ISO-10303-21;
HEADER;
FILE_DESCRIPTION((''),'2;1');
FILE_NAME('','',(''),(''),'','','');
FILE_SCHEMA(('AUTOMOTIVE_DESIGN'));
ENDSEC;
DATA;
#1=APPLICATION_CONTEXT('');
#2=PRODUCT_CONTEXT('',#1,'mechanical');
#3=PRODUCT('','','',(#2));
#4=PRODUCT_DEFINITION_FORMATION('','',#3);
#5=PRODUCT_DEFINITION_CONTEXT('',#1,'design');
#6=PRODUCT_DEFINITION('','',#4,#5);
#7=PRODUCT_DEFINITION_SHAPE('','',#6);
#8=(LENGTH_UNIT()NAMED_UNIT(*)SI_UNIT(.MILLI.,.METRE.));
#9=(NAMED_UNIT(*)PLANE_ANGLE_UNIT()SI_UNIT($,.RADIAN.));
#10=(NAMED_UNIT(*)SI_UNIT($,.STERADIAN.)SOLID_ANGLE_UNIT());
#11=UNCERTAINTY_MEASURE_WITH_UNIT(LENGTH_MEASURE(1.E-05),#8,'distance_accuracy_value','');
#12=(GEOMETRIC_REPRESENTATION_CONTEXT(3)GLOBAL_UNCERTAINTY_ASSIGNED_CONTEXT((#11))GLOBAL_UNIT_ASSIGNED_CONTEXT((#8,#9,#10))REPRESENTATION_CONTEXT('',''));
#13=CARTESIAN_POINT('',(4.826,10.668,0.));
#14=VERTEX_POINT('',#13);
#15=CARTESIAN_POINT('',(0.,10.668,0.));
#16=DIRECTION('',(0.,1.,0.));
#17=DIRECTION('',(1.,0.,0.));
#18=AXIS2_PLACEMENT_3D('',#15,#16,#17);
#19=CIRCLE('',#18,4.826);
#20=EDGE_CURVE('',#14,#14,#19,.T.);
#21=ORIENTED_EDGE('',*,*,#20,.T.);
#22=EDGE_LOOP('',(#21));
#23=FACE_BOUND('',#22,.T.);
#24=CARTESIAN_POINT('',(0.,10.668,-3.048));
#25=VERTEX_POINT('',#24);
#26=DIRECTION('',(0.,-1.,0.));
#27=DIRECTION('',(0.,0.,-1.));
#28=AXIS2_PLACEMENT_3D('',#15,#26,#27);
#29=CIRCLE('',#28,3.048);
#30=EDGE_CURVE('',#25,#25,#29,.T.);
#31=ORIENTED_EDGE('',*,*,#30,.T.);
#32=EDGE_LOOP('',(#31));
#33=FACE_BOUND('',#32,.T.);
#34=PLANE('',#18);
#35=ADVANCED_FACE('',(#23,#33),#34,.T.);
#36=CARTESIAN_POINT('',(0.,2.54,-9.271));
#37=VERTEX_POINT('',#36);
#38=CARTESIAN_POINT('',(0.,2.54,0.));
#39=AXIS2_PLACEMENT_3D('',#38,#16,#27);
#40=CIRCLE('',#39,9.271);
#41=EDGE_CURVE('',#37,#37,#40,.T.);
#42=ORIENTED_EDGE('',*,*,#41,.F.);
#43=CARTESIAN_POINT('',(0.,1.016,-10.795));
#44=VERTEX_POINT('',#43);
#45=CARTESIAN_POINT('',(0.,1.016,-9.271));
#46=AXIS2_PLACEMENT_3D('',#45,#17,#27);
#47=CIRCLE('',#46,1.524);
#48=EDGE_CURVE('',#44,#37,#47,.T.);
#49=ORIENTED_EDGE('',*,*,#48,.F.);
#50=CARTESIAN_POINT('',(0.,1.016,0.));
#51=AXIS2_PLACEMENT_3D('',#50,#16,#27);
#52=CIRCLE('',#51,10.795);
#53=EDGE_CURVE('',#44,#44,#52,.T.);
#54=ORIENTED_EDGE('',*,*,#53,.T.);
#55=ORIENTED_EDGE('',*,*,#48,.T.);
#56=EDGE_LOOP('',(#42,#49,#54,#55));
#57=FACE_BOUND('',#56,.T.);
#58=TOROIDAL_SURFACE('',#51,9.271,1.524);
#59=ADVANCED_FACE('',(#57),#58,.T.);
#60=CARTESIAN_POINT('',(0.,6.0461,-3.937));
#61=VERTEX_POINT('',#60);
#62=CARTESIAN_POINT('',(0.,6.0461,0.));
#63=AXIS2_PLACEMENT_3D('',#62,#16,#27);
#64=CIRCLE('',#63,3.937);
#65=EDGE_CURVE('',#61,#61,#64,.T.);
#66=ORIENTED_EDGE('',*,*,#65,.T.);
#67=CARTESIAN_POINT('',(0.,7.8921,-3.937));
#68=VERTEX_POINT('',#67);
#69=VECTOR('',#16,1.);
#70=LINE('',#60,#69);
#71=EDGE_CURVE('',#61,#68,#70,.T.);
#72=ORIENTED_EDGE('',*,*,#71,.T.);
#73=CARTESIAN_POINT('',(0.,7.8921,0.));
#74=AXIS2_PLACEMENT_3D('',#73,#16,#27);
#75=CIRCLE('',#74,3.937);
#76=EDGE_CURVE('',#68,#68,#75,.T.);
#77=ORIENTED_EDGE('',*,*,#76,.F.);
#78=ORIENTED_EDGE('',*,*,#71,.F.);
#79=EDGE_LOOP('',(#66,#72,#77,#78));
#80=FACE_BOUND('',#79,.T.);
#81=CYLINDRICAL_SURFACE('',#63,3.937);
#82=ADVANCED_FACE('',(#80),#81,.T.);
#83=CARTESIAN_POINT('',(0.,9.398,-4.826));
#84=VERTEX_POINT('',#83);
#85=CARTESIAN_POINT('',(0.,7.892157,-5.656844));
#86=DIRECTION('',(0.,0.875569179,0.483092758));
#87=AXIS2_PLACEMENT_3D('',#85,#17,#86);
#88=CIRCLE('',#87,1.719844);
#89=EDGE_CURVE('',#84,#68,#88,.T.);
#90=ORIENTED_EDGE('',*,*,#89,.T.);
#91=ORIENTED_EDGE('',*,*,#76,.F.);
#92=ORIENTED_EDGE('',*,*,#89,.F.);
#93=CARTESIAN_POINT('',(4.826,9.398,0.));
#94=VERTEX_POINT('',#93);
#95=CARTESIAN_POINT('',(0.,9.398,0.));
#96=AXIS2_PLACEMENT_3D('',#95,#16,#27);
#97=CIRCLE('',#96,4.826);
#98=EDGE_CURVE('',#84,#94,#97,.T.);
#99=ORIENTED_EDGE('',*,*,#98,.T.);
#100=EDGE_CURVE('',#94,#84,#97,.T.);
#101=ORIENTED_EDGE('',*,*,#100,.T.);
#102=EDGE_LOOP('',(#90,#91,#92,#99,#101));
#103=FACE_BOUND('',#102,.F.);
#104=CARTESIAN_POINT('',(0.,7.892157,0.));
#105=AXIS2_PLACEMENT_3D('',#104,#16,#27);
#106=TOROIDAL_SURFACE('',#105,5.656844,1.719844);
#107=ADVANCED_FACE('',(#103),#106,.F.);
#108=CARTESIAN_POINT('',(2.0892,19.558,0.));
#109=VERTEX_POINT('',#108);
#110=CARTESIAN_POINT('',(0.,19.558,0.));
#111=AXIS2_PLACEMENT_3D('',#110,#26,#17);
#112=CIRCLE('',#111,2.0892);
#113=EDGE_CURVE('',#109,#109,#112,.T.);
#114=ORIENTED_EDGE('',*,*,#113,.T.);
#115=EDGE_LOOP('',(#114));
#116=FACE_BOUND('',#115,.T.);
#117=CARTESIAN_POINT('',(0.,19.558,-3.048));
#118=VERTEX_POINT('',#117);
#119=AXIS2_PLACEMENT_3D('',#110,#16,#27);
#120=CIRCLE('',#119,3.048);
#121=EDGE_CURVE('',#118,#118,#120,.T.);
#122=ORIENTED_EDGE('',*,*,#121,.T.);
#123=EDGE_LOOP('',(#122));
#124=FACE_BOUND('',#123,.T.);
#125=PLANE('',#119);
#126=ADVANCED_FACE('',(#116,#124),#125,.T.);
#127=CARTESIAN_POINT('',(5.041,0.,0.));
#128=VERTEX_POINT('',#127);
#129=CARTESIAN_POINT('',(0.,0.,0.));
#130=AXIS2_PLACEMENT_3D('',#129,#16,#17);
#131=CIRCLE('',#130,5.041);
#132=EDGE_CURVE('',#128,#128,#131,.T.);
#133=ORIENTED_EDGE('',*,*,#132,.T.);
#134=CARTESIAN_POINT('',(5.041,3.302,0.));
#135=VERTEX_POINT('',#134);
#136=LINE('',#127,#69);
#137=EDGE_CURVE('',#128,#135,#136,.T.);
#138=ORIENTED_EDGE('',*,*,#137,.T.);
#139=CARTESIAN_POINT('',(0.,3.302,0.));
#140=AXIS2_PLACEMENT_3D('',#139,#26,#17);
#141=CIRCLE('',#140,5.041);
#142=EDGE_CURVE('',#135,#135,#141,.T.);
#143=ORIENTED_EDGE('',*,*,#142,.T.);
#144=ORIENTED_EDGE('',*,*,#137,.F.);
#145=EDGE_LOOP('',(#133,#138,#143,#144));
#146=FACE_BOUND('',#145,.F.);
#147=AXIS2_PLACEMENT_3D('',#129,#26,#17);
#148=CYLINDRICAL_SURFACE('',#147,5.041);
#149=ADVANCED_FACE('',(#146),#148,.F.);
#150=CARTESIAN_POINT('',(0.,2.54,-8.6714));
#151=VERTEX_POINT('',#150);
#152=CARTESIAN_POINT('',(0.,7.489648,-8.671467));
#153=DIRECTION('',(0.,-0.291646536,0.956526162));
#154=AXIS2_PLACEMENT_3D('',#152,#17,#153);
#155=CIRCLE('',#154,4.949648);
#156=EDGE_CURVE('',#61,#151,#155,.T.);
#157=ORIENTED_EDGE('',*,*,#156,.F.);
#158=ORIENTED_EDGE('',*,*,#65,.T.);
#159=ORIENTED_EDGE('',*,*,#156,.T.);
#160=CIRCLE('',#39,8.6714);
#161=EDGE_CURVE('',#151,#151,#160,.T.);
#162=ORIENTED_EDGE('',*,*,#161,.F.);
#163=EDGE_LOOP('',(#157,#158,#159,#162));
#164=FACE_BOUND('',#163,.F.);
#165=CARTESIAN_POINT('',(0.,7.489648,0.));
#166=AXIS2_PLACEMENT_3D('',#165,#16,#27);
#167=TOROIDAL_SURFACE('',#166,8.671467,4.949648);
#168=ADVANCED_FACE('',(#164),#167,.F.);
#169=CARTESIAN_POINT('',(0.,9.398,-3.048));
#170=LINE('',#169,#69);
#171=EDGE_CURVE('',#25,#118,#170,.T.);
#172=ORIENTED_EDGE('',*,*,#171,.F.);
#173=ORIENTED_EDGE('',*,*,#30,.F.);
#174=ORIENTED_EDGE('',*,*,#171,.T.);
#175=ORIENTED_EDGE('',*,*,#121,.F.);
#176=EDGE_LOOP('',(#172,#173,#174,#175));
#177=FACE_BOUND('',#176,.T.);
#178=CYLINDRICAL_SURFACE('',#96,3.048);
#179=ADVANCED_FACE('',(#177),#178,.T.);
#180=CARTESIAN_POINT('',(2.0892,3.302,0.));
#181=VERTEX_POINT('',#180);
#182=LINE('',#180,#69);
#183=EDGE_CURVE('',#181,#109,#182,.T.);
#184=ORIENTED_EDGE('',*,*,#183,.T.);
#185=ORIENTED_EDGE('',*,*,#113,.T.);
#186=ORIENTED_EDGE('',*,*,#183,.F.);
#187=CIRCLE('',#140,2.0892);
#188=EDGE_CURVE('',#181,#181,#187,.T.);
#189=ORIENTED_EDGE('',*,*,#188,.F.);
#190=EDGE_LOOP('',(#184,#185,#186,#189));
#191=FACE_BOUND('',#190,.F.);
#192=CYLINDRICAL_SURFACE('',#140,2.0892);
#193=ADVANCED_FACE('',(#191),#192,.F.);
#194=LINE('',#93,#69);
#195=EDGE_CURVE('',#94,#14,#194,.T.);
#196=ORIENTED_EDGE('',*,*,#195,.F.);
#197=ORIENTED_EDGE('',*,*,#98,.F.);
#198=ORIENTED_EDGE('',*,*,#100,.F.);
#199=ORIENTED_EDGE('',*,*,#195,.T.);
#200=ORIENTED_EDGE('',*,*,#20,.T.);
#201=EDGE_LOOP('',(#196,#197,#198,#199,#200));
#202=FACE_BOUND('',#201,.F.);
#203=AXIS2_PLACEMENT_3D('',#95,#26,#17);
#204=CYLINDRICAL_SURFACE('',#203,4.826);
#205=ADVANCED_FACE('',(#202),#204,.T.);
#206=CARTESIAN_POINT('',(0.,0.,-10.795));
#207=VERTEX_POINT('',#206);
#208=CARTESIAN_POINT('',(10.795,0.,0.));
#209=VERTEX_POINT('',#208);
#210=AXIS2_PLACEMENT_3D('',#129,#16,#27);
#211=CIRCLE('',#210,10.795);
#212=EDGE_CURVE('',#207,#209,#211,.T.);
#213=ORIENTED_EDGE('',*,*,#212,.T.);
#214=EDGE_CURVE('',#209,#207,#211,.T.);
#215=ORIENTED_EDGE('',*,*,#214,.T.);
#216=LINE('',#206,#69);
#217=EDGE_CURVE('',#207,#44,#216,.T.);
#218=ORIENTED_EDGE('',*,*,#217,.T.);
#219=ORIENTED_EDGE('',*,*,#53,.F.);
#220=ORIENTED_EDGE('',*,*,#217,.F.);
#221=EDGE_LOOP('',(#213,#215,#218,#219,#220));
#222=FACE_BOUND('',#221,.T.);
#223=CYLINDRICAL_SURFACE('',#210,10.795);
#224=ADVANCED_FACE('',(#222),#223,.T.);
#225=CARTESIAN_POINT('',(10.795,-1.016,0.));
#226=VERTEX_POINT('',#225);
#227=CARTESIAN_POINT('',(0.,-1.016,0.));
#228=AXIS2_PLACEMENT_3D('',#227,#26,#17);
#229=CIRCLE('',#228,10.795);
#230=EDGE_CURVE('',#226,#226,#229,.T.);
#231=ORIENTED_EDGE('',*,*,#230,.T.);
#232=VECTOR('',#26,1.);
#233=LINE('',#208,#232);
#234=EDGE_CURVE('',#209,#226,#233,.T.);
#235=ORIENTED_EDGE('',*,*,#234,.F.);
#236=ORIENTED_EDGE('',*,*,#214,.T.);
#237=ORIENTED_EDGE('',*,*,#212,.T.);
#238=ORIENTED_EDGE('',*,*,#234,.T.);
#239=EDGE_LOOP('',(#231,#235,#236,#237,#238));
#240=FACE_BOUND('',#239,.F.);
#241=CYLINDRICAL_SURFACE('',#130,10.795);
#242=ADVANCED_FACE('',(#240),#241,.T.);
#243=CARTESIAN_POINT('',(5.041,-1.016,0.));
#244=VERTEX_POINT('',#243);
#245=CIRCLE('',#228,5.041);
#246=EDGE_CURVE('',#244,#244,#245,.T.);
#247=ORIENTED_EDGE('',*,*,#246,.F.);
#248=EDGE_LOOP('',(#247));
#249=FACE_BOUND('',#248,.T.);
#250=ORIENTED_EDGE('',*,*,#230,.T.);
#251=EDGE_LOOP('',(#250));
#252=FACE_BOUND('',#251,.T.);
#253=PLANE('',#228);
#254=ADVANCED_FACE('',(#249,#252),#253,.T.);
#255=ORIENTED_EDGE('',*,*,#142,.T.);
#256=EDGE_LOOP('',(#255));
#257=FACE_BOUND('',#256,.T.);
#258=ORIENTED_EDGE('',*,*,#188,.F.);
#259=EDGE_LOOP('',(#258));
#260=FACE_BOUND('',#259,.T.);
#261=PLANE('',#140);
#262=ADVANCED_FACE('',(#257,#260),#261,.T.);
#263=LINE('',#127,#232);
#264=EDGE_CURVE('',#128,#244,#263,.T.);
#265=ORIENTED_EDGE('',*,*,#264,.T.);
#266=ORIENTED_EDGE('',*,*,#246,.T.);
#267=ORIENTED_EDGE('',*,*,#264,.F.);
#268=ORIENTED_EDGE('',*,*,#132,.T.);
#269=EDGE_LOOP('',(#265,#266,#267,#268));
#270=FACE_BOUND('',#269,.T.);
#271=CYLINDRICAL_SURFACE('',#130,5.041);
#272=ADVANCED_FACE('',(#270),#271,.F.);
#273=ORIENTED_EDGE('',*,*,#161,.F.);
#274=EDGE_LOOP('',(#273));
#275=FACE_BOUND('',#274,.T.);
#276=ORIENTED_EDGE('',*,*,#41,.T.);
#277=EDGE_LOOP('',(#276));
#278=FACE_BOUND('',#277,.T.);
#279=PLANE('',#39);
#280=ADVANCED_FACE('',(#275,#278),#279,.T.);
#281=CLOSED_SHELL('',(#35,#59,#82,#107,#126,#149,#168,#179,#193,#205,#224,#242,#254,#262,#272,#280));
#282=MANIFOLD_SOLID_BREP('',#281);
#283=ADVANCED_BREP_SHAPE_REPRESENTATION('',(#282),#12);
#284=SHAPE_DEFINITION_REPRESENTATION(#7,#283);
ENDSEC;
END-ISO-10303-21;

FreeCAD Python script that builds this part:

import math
import FreeCAD as App
import Part
import Sketcher

V = App.Vector
Q = App.Units.Quantity


def edges_at(feature, points):
    """Names of the edges that pass closest to the given points."""
    edges = feature.Shape.Edges
    near = lambda p: min(range(len(edges)), key=lambda i: edges[i].distToShape(Part.Vertex(*p))[0])
    return sorted({f"Edge{near(p) + 1}" for p in points})


def add_polygon(sketch, points):
    """Adds a closed chain of lines whose ends are joined by coincident constraints."""
    first, n = sketch.GeometryCount, len(points)
    for a, b in zip(points, points[1:] + points[:1]):
        sketch.addGeometry(Part.LineSegment(App.Vector(*a, 0), App.Vector(*b, 0)), False)
    for i in range(n):
        sketch.addConstraint(Sketcher.Constraint("Coincident", first + i, 2, first + (i + 1) % n, 1))

doc = App.newDocument("Part")
body = doc.addObject("PartDesign::Body", "Body")

# Sketch on YZ plane
sketch1 = doc.addObject("Sketcher::SketchObject", "Sketch")
body.addObject(sketch1)
sketch1.AttachmentSupport = (doc.YZ_Plane, [""])
sketch1.MapMode = "FlatFace"
sketch1.addGeometry(Part.LineSegment(V(19.558, 0, 0), V(0, 0, 0)), False)
sketch1.addGeometry(Part.LineSegment(V(0, 0, 0), V(0, -10.795, 0)), False)
sketch1.addGeometry(Part.LineSegment(V(0, -10.795, 0), V(2.54, -10.795, 0)), False)
sketch1.addGeometry(Part.LineSegment(V(2.54, -10.795, 0), V(2.54, -8.6714, 0)), False)
sketch1.addGeometry(Part.ArcOfCircle(Part.Circle(V(7.4896, -8.6714, 0), V(0, 0, 1), 4.949569), math.radians(106.956258), math.radians(180)), False)
sketch1.addGeometry(Part.LineSegment(V(6.0461, -3.937, 0), V(7.8921, -3.937, 0)), False)
sketch1.addGeometry(Part.ArcOfCircle(Part.Circle(V(7.8921, -5.6569, 0), V(0, 0, 1), 1.719921), math.radians(28.888292), math.radians(90)), False)
sketch1.addGeometry(Part.LineSegment(V(9.398, -4.826, 0), V(9.398, -3.048, 0)), False)
sketch1.addGeometry(Part.LineSegment(V(9.398, -3.048, 0), V(19.558, -3.048, 0)), False)
sketch1.addGeometry(Part.LineSegment(V(19.558, -3.048, 0), V(19.558, 0, 0)), False)
sketch1.addConstraint(Sketcher.Constraint("Coincident", 0, 2, 1, 1))
sketch1.addConstraint(Sketcher.Constraint("Coincident", 1, 2, 2, 1))
sketch1.addConstraint(Sketcher.Constraint("Coincident", 2, 2, 3, 1))
sketch1.addConstraint(Sketcher.Constraint("Tangent", 3, 2, 4, 2))
sketch1.addConstraint(Sketcher.Constraint("Coincident", 4, 1, 5, 1))
sketch1.addConstraint(Sketcher.Constraint("Tangent", 5, 2, 6, 2))
sketch1.addConstraint(Sketcher.Constraint("Coincident", 6, 1, 7, 1))
sketch1.addConstraint(Sketcher.Constraint("Coincident", 7, 2, 8, 1))
sketch1.addConstraint(Sketcher.Constraint("Coincident", 8, 2, 9, 1))
sketch1.addConstraint(Sketcher.Constraint("Coincident", 9, 2, 0, 1))
sketch1.addConstraint(Sketcher.Constraint("Horizontal", 0))
sketch1.addConstraint(Sketcher.Constraint("Vertical", 1))
sketch1.addConstraint(Sketcher.Constraint("Horizontal", 2))
sketch1.addConstraint(Sketcher.Constraint("Vertical", 3))
sketch1.addConstraint(Sketcher.Constraint("Horizontal", 5))
sketch1.addConstraint(Sketcher.Constraint("Vertical", 7))
sketch1.addConstraint(Sketcher.Constraint("Horizontal", 8))
sketch1.addConstraint(Sketcher.Constraint("Vertical", 9))
sketch1.addConstraint(Sketcher.Constraint("Coincident", 0, 2, -1, 1))
sketch1.addConstraint(Sketcher.Constraint("DistanceX", 2, 1, 2, 2, Q("0.1 in")))
sketch1.addConstraint(Sketcher.Constraint("DistanceX", 8, 1, 8, 2, Q("0.4 in")))
sketch1.addConstraint(Sketcher.Constraint("DistanceY", 9, 1, 9, 2, Q("0.12 in")))
sketch1.addConstraint(Sketcher.Constraint("DistanceY", 1, 2, 1, 1, Q("0.425 in")))
sketch1.addConstraint(Sketcher.Constraint("DistanceX", -1, 1, 6, 1, Q("0.37 in")))
sketch1.addConstraint(Sketcher.Constraint("DistanceY", 6, 1, -1, 1, Q("0.19 in")))
sketch1.addConstraint(Sketcher.Constraint("Radius", 4, 4.9496))
sketch1.addConstraint(Sketcher.Constraint("Radius", 6, 1.72))
sketch1.addConstraint(Sketcher.Constraint("DistanceY", 4, 1, -1, 1, Q("0.155 in")))
sketch1.addConstraint(Sketcher.Constraint("DistanceY", 4, 3, 7, 2, Q("0.2214 in")))
revolution = doc.addObject("PartDesign::Revolution", "Revolution")
body.addObject(revolution)
revolution.Profile = sketch1
revolution.ReferenceAxis = (sketch1, ["H_Axis"])
revolution.Angle = 360

# Sketch on XZ plane
sketch2 = doc.addObject("Sketcher::SketchObject", "Sketch001")
body.addObject(sketch2)
sketch2.AttachmentSupport = (doc.XZ_Plane, [""])
sketch2.MapMode = "FlatFace"
add_polygon(sketch2, [(1.6491, -4.7636), (4.95, -0.9536), (3.3008, 3.81), (-1.6491, 4.7636), (-4.95, 0.9536), (-3.3008, -3.81)])  # lines 0-5
sketch2.addConstraint(Sketcher.Constraint("Symmetric", 0, 2, 3, 2, -1, 1))
sketch2.addConstraint(Sketcher.Constraint("Symmetric", 1, 2, 4, 2, -1, 1))
sketch2.addConstraint(Sketcher.Constraint("Symmetric", 2, 2, 5, 2, -1, 1))
sketch2.addConstraint(Sketcher.Constraint("Equal", 0, 1))
sketch2.addConstraint(Sketcher.Constraint("Equal", 1, 2))
sketch2.addConstraint(Sketcher.Constraint("DistanceY", 4, 2, 1, 2, Q("0.3 in")))
sketch2.addConstraint(Sketcher.Constraint("DistanceY", 3, 2, 2, 2, Q("0.15 in")))
sketch2.addConstraint(Sketcher.Constraint("DistanceX", 2, 2, 0, 2, Q("0.2598 in")))
sketch2.addConstraint(Sketcher.Constraint("DistanceX", 4, 2, 1, 2, Q("0.2599 in")))
pocket1 = doc.addObject("PartDesign::Pocket", "Pocket")
body.addObject(pocket1)
pocket1.Profile = sketch2
pocket1.Length = Q("0.13 in")

# Sketch on XZ plane
sketch3 = doc.addObject("Sketcher::SketchObject", "Sketch002")
body.addObject(sketch3)
sketch3.AttachmentSupport = (doc.XZ_Plane, [""])
sketch3.MapMode = "FlatFace"
sketch3.AttachmentOffset = App.Placement(V(0, 0, -0.13 * 25.4), App.Rotation())
sketch3.addGeometry(Part.Circle(V(0, 0, 0), V(0, 0, 1), 2.0892), False)
sketch3.addConstraint(Sketcher.Constraint("Coincident", 0, 3, -1, 1))
sketch3.addConstraint(Sketcher.Constraint("Diameter", 0, Q("0.1645 in")))
pocket2 = doc.addObject("PartDesign::Pocket", "Pocket001")
body.addObject(pocket2)
pocket2.Profile = sketch3
pocket2.Length = Q("0.64 in")

# Sketch on XZ plane
sketch4 = doc.addObject("Sketcher::SketchObject", "Sketch003")
body.addObject(sketch4)
sketch4.AttachmentSupport = (doc.XZ_Plane, [""])
sketch4.MapMode = "FlatFace"
sketch4.AttachmentOffset = App.Placement(V(0, 0, -0.37 * 25.4), App.Rotation())
sketch4.addGeometry(Part.Circle(V(0, 0, 0), V(0, 0, 1), 4.826), False)
sketch4.addGeometry(Part.Circle(V(0, 0, 0), V(0, 0, 1), 3.048), False)
sketch4.addConstraint(Sketcher.Constraint("Coincident", 0, 3, -1, 1))
sketch4.addConstraint(Sketcher.Constraint("Coincident", 1, 3, -1, 1))
sketch4.addConstraint(Sketcher.Constraint("Diameter", 0, Q("0.38 in")))
sketch4.addConstraint(Sketcher.Constraint("Diameter", 1, Q("0.24 in")))
pad1 = doc.addObject("PartDesign::Pad", "Pad")
body.addObject(pad1)
pad1.Profile = sketch4
pad1.Length = Q("0.05 in")
pad1.Reversed = True

# Sketch on XZ plane
sketch5 = doc.addObject("Sketcher::SketchObject", "Sketch004")
body.addObject(sketch5)
sketch5.AttachmentSupport = (doc.XZ_Plane, [""])
sketch5.MapMode = "FlatFace"
sketch5.addGeometry(Part.Circle(V(0, 0, 0), V(0, 0, 1), 5.041), False)
sketch5.addGeometry(Part.Circle(V(0, 0, 0), V(0, 0, 1), 3.048), False)
sketch5.addConstraint(Sketcher.Constraint("Coincident", 0, 3, -1, 1))
sketch5.addConstraint(Sketcher.Constraint("Coincident", 1, 3, -1, 1))
sketch5.addConstraint(Sketcher.Constraint("Diameter", 1, Q("0.24 in")))
sketch5.addConstraint(Sketcher.Constraint("Diameter", 0, 10.082))
pocket3 = doc.addObject("PartDesign::Pocket", "Pocket002")
body.addObject(pocket3)
pocket3.Profile = sketch5
pocket3.Length = Q("0.13 in")

# Sketch on XZ plane
sketch6 = doc.addObject("Sketcher::SketchObject", "Sketch005")
body.addObject(sketch6)
sketch6.AttachmentSupport = (doc.XZ_Plane, [""])
sketch6.MapMode = "FlatFace"
sketch6.addGeometry(Part.Circle(V(0, 0, 0), V(0, 0, 1), 10.795), False)
sketch6.addGeometry(Part.Circle(V(0, 0, 0), V(0, 0, 1), 5.041), False)
sketch6.addConstraint(Sketcher.Constraint("Coincident", 0, 3, -1, 1))
sketch6.addConstraint(Sketcher.Constraint("Coincident", 1, 3, -1, 1))
sketch6.addConstraint(Sketcher.Constraint("Diameter", 0, Q("0.85 in")))
sketch6.addConstraint(Sketcher.Constraint("Diameter", 1, 10.082))
pad2 = doc.addObject("PartDesign::Pad", "Pad001")
body.addObject(pad2)
pad2.Profile = sketch6
pad2.Length = Q("0.04 in")
doc.recompute()

fillet = doc.addObject("PartDesign::Fillet", "Fillet")
body.addObject(fillet)
fillet.Base = (pad2, edges_at(pad2, [(0, 2.54, 10.795)]))
fillet.Radius = Q("0.06 in")

doc.recompute()
